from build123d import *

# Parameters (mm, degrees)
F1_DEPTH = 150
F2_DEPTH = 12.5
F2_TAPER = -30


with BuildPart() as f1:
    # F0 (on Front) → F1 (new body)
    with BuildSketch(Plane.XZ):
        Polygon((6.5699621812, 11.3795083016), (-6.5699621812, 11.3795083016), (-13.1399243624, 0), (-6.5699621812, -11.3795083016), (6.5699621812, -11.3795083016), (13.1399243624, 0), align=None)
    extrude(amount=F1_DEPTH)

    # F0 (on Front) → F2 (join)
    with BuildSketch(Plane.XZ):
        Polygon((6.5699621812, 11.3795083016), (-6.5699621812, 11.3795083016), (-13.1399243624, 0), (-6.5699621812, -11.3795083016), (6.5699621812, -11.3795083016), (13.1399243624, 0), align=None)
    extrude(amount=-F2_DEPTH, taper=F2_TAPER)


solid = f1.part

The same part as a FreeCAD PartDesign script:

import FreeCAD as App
import Part
import Sketcher
from FreeCAD import Vector
Q = App.Units.Quantity

doc = App.newDocument("Part")
params = doc.addObject("Spreadsheet::Sheet", "Params")
for row, (alias, value) in enumerate([
    ("pad1_length", "150 mm"),
    ("pad2_length", "12.5 mm"),
    ("pad2_taper", "30 deg"),
], start=1):
    params.set(f"A{row}", alias)
    params.set(f"B{row}", "=" + value)
    params.setAlias(f"B{row}", alias)

body = doc.addObject("PartDesign::Body", "Body")

# Sketch on XZ plane
sketch1 = doc.addObject("Sketcher::SketchObject", "Sketch")
body.addObject(sketch1)
sketch1.AttachmentSupport = (doc.XZ_Plane, [""])
sketch1.MapMode = "FlatFace"
sketch1.addGeometry(Part.LineSegment(Vector(7, 11, 0), Vector(-7, 11, 0)), False)
sketch1.addGeometry(Part.LineSegment(Vector(-7, 11, 0), Vector(-13, 0, 0)), False)
sketch1.addGeometry(Part.LineSegment(Vector(-13, 0, 0), Vector(-7, -11, 0)), False)
sketch1.addGeometry(Part.LineSegment(Vector(-7, -11, 0), Vector(7, -11, 0)), False)
sketch1.addGeometry(Part.LineSegment(Vector(7, -11, 0), Vector(13, 0, 0)), False)
sketch1.addGeometry(Part.LineSegment(Vector(13, 0, 0), Vector(7, 11, 0)), False)
sketch1.addConstraint(Sketcher.Constraint("Coincident", 0, 2, 1, 1))
sketch1.addConstraint(Sketcher.Constraint("Coincident", 1, 2, 2, 1))
sketch1.addConstraint(Sketcher.Constraint("Coincident", 2, 2, 3, 1))
sketch1.addConstraint(Sketcher.Constraint("Coincident", 3, 2, 4, 1))
sketch1.addConstraint(Sketcher.Constraint("Coincident", 4, 2, 5, 1))
sketch1.addConstraint(Sketcher.Constraint("Coincident", 5, 2, 0, 1))
sketch1.addConstraint(Sketcher.Constraint("Horizontal", 0))
sketch1.addConstraint(Sketcher.Constraint("Horizontal", 3))
sketch1.addConstraint(Sketcher.Constraint("Symmetric", 0, 2, 3, 2, -1, 1))
sketch1.addConstraint(Sketcher.Constraint("Symmetric", 1, 2, 4, 2, -1, 1))
sketch1.addConstraint(Sketcher.Constraint("PointOnObject", 1, 2, -1))
sketch1.addConstraint(Sketcher.Constraint("Parallel", 2, 5))
sketch1.addConstraint(Sketcher.Constraint("Vertical", 0, 2, 2, 2))
sketch1.addConstraint(Sketcher.Constraint("Angle", 1, Q("-120 deg")))
sketch1.addConstraint(Sketcher.Constraint("DistanceX", 0, 2, 0, 1, 13.139924))
sketch1.addConstraint(Sketcher.Constraint("DistanceY", -1, 1, 0, 2, 11.379508))
pad1 = doc.addObject("PartDesign::Pad", "Pad")
body.addObject(pad1)
pad1.Profile = sketch1
pad1.setExpression("Length", "Params.pad1_length")

# Sketch on XZ plane
sketch2 = doc.addObject("Sketcher::SketchObject", "Sketch001")
body.addObject(sketch2)
sketch2.AttachmentSupport = (doc.XZ_Plane, [""])
sketch2.MapMode = "FlatFace"
sketch2.addGeometry(Part.LineSegment(Vector(7, 11, 0), Vector(-7, 11, 0)), False)
sketch2.addGeometry(Part.LineSegment(Vector(-7, 11, 0), Vector(-13, 0, 0)), False)
sketch2.addGeometry(Part.LineSegment(Vector(-13, 0, 0), Vector(-7, -11, 0)), False)
sketch2.addGeometry(Part.LineSegment(Vector(-7, -11, 0), Vector(7, -11, 0)), False)
sketch2.addGeometry(Part.LineSegment(Vector(7, -11, 0), Vector(13, 0, 0)), False)
sketch2.addGeometry(Part.LineSegment(Vector(13, 0, 0), Vector(7, 11, 0)), False)
sketch2.addConstraint(Sketcher.Constraint("Coincident", 0, 2, 1, 1))
sketch2.addConstraint(Sketcher.Constraint("Coincident", 1, 2, 2, 1))
sketch2.addConstraint(Sketcher.Constraint("Coincident", 2, 2, 3, 1))
sketch2.addConstraint(Sketcher.Constraint("Coincident", 3, 2, 4, 1))
sketch2.addConstraint(Sketcher.Constraint("Coincident", 4, 2, 5, 1))
sketch2.addConstraint(Sketcher.Constraint("Coincident", 5, 2, 0, 1))
sketch2.addConstraint(Sketcher.Constraint("Horizontal", 0))
sketch2.addConstraint(Sketcher.Constraint("Horizontal", 3))
sketch2.addConstraint(Sketcher.Constraint("Symmetric", 0, 2, 3, 2, -1, 1))
sketch2.addConstraint(Sketcher.Constraint("Symmetric", 1, 2, 4, 2, -1, 1))
sketch2.addConstraint(Sketcher.Constraint("PointOnObject", 1, 2, -1))
sketch2.addConstraint(Sketcher.Constraint("Parallel", 2, 5))
sketch2.addConstraint(Sketcher.Constraint("Vertical", 0, 2, 2, 2))
sketch2.addConstraint(Sketcher.Constraint("Angle", 1, Q("-120 deg")))
sketch2.addConstraint(Sketcher.Constraint("DistanceX", 0, 2, 0, 1, 13.139924))
sketch2.addConstraint(Sketcher.Constraint("DistanceY", -1, 1, 0, 2, 11.379508))
pad2 = doc.addObject("PartDesign::Pad", "Pad001")
body.addObject(pad2)
pad2.Profile = sketch2
pad2.setExpression("Length", "Params.pad2_length")
pad2.Reversed = True
pad2.setExpression("TaperAngle", "Params.pad2_taper")

doc.recompute()
